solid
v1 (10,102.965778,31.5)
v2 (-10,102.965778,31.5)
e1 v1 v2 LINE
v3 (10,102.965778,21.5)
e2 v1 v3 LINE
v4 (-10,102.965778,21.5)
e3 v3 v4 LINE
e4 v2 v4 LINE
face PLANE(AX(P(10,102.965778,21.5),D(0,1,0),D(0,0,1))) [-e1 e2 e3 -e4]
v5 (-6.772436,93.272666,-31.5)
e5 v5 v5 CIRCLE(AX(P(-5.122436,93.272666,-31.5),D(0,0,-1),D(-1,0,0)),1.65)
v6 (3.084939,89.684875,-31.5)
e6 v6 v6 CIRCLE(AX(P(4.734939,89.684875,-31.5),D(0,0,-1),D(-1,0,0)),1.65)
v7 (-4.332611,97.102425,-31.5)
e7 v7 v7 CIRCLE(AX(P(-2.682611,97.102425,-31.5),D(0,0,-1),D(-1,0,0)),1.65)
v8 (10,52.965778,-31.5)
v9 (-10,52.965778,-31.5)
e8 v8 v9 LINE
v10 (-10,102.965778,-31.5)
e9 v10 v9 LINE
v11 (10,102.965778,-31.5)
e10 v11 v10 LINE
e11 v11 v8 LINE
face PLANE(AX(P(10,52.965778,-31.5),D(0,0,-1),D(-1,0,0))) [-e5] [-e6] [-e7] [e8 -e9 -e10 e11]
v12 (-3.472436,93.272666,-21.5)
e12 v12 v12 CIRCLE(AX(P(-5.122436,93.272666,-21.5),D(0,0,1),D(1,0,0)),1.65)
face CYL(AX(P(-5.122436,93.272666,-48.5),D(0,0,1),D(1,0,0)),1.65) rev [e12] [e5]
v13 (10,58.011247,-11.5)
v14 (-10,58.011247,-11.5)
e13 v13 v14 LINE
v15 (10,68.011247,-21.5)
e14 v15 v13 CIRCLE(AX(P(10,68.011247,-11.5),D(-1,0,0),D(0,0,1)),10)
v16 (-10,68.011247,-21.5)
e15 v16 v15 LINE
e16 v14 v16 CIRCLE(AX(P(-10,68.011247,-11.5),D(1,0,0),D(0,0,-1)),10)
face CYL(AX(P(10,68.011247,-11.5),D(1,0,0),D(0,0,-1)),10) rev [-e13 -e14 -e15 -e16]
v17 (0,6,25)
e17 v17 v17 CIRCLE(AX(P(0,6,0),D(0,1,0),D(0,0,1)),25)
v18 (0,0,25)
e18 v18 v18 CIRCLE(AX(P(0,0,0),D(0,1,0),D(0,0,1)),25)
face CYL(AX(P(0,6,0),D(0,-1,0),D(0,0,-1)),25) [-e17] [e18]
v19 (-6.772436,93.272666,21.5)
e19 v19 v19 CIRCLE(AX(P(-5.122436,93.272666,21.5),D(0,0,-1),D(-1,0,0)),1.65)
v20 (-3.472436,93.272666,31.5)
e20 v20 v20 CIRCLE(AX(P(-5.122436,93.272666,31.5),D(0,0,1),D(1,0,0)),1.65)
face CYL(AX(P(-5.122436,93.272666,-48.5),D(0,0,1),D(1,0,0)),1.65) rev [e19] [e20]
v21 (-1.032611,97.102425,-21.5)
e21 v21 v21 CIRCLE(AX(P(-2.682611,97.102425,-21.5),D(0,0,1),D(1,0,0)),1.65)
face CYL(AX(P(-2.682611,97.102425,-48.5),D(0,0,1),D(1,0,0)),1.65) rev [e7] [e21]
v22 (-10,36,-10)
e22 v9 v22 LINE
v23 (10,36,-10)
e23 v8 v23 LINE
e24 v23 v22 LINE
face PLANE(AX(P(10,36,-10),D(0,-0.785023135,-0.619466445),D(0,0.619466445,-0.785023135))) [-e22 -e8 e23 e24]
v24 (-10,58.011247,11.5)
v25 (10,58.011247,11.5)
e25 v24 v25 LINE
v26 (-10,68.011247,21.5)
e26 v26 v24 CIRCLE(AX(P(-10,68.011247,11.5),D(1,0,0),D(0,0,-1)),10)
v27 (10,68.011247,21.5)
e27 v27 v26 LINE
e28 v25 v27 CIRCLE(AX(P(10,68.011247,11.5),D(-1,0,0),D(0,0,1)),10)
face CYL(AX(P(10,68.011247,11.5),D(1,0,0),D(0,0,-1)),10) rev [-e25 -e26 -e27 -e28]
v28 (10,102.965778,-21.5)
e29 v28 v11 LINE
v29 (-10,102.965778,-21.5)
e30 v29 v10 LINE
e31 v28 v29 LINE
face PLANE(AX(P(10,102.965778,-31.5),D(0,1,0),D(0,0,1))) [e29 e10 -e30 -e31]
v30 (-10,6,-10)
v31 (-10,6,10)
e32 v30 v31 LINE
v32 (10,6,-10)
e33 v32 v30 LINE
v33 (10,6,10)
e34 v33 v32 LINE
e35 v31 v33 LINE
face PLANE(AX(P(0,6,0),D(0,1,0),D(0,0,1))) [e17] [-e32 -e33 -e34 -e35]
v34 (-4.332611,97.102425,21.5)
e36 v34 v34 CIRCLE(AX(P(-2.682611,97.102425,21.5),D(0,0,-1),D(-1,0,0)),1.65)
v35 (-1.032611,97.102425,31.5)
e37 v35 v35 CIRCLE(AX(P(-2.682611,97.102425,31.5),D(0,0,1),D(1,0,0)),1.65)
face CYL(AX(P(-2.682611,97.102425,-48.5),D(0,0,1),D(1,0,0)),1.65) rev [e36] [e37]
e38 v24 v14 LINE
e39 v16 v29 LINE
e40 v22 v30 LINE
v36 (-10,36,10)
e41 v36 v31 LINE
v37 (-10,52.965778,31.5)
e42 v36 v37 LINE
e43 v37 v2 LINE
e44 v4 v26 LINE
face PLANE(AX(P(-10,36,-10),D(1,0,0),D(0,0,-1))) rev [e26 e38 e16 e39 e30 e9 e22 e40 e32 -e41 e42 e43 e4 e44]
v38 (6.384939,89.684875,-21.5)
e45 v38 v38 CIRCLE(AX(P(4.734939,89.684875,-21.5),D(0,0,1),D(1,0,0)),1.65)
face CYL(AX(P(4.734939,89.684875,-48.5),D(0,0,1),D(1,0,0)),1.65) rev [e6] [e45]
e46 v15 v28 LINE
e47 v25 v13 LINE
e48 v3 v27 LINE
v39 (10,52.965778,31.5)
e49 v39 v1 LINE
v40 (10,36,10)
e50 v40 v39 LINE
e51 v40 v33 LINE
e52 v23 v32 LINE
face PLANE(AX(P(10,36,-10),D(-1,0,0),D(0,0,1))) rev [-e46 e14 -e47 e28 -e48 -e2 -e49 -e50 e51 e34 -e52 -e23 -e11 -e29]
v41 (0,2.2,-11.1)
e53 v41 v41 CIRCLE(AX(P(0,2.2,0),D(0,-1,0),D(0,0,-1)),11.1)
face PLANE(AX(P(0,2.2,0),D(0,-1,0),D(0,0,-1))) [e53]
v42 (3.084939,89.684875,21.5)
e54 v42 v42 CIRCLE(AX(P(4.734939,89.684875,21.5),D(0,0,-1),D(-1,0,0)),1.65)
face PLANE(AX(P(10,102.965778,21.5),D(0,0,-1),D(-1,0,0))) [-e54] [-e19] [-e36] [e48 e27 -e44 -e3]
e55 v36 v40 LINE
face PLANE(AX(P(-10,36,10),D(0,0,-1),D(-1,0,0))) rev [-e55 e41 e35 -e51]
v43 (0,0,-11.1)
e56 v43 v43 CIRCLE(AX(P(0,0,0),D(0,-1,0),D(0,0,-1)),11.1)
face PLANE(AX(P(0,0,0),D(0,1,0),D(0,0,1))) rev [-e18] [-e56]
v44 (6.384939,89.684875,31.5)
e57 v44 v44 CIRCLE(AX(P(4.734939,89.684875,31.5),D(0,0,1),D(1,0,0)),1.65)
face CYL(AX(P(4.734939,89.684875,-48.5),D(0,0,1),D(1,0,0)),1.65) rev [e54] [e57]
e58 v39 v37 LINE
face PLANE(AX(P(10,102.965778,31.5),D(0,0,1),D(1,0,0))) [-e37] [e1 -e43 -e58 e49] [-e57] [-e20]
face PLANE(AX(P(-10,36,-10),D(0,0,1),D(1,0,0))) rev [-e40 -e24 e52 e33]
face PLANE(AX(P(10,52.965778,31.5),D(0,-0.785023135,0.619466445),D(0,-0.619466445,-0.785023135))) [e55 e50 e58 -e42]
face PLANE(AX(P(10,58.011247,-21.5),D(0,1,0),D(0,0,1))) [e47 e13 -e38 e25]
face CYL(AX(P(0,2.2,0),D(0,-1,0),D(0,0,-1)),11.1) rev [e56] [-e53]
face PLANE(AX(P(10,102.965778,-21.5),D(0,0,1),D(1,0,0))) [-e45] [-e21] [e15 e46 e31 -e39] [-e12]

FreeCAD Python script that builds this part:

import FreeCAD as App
import Part
import Sketcher
from FreeCAD import Vector
Q = App.Units.Quantity


def edges_at(feature, points):
    """Names of the edges that pass closest to the given points."""
    edges = feature.Shape.Edges
    near = lambda p: min(range(len(edges)), key=lambda i: edges[i].distToShape(Part.Vertex(*p))[0])
    return sorted({f"Edge{near(p) + 1}" for p in points})


def add_polygon(sketch, points):
    """Adds a closed chain of lines whose ends are joined by coincident constraints."""
    first, n = sketch.GeometryCount, len(points)
    for a, b in zip(points, points[1:] + points[:1]):
        sketch.addGeometry(Part.LineSegment(App.Vector(*a, 0), App.Vector(*b, 0)), False)
    for i in range(n):
        sketch.addConstraint(Sketcher.Constraint("Coincident", first + i, 2, first + (i + 1) % n, 1))

doc = App.newDocument("Part")
body = doc.addObject("PartDesign::Body", "Body")

sketch1 = doc.addObject("Sketcher::SketchObject", "Sketch")
body.addObject(sketch1)
sketch1.AttachmentSupport = (doc.XZ_Plane, [""])
sketch1.MapMode = "FlatFace"
sketch1.addGeometry(Part.Circle(Vector(0, 0, 0), Vector(0, 0, 1), 25), False)
sketch1.addConstraint([
    Sketcher.Constraint("Coincident", 0, 3, -1, 1),
    Sketcher.Constraint("Diameter", 0, Q("50 mm")),
])
pad1 = doc.addObject("PartDesign::Pad", "Pad")
body.addObject(pad1)
pad1.Profile = sketch1
pad1.Length = 6
pad1.Reversed = True

sketch2 = doc.addObject("Sketcher::SketchObject", "Sketch001")
body.addObject(sketch2)
sketch2.AttachmentSupport = (doc.XZ_Plane, [""])
sketch2.MapMode = "FlatFace"
sketch2.AttachmentOffset = App.Placement(Vector(0, 0, -6), App.Rotation())
add_polygon(sketch2, [(-10, -10), (-10, 10), (10, 10), (10, -10)])
sketch2.addConstraint([
    Sketcher.Constraint("Vertical", 0),
    Sketcher.Constraint("Horizontal", 1),
    Sketcher.Constraint("Vertical", 2),
    Sketcher.Constraint("Horizontal", 3),
    Sketcher.Constraint("Symmetric", 0, 2, 2, 2, -1, 1),
    Sketcher.Constraint("Equal", 3, 0),
    Sketcher.Constraint("DistanceX", 1, 1, 1, 2, Q("20 mm")),
])
pad2 = doc.addObject("PartDesign::Pad", "Pad001")
body.addObject(pad2)
pad2.Profile = sketch2
pad2.Length = 30
pad2.Reversed = True

sketch3 = doc.addObject("Sketcher::SketchObject", "Sketch002")
body.addObject(sketch3)
sketch3.AttachmentSupport = (doc.YZ_Plane, [""])
sketch3.MapMode = "FlatFace"
sketch3.AttachmentOffset = App.Placement(Vector(0, 0, -10), App.Rotation())
add_polygon(sketch3, [(53, -32), (36, -10), (36, 10), (53, 32), (103, 32), (103, 22), (58, 22), (58, -22), (103, -22), (103, -32)])
sketch3.addConstraint([
    Sketcher.Constraint("Vertical", 1),
    Sketcher.Constraint("Horizontal", 3),
    Sketcher.Constraint("Vertical", 4),
    Sketcher.Constraint("Horizontal", 5),
    Sketcher.Constraint("Vertical", 6),
    Sketcher.Constraint("Horizontal", 7),
    Sketcher.Constraint("Vertical", 8),
    Sketcher.Constraint("Horizontal", 9),
    Sketcher.Constraint("Symmetric", 4, 2, 7, 2, -1),
    Sketcher.Constraint("Symmetric", 2, 2, 9, 2, -1),
    Sketcher.Constraint("Equal", 0, 2),
    Sketcher.Constraint("DistanceX", 3, 1, 3, 2, Q("50 mm")),
    Sketcher.Constraint("DistanceY", 1, 1, 1, 2, Q("20 mm")),
    Sketcher.Constraint("DistanceY", 4, 2, 4, 1, Q("10 mm")),
    Sketcher.Constraint("DistanceY", 6, 2, 6, 1, Q("43 mm")),
    Sketcher.Constraint("DistanceX", -1, 1, 0, 2, Q("36 mm")),
    Sketcher.Constraint("DistanceX", 5, 2, 5, 1, Q("44.954531 mm")),
    Sketcher.Constraint("DistanceX", -1, 1, 2, 2, Q("52.965778 mm")),
])
pad3 = doc.addObject("PartDesign::Pad", "Pad002")
body.addObject(pad3)
pad3.Profile = sketch3
pad3.Length = 20
doc.recompute()

fillet = doc.addObject("PartDesign::Fillet", "Fillet")
body.addObject(fillet)
fillet.Base = (pad3, edges_at(pad3, [(0, 58.011, -21.5)]))
fillet.Radius = 10
doc.recompute()

fillet2 = doc.addObject("PartDesign::Fillet", "Fillet001")
body.addObject(fillet2)
fillet2.Base = (fillet, edges_at(fillet, [(0, 58.011, 21.5)]))
fillet2.Radius = 10

sketch4 = doc.addObject("Sketcher::SketchObject", "Sketch003")
body.addObject(sketch4)
sketch4.AttachmentSupport = (doc.XZ_Plane, [""])
sketch4.MapMode = "FlatFace"
sketch4.addGeometry(Part.Circle(Vector(0, 0, 0), Vector(0, 0, 1), 11), False)
sketch4.addConstraint([
    Sketcher.Constraint("Coincident", 0, 3, -1, 1),
    Sketcher.Constraint("Diameter", 0, Q("22.2 mm")),
])
pocket1 = doc.addObject("PartDesign::Pocket", "Pocket")
body.addObject(pocket1)
pocket1.Profile = sketch4
pocket1.Length = 2.2

sketch5 = doc.addObject("Sketcher::SketchObject", "Sketch004")
body.addObject(sketch5)
sketch5.AttachmentSupport = (doc.XY_Plane, [""])
sketch5.MapMode = "FlatFace"
sketch5.AttachmentOffset = App.Placement(Vector(0, 0, 31.5), App.Rotation())
sketch5.addGeometry([
    Part.Circle(Vector(4.7, 89.7, 0), Vector(0, 0, 1), 1.6),
    Part.Circle(Vector(-2.7, 97.1, 0), Vector(0, 0, 1), 1.6),
    Part.Circle(Vector(-5.1, 93.3, 0), Vector(0, 0, 1), 1.6),
], False)
sketch5.addConstraint([
    Sketcher.Constraint("Equal", 0, 1),
    Sketcher.Constraint("Equal", 1, 2),
    Sketcher.Constraint("Diameter", 0, Q("3.3 mm")),
    Sketcher.Constraint("DistanceX", -1, 1, 0, 3, Q("4.734939 mm")),
    Sketcher.Constraint("DistanceX", 1, 3, -1, 1, Q("2.682611 mm")),
    Sketcher.Constraint("DistanceY", 0, 3, 1, 3, Q("7.41755 mm")),
    Sketcher.Constraint("DistanceY", 2, 3, 1, 3, Q("3.829759 mm")),
    Sketcher.Constraint("DistanceY", -1, 1, 0, 3, Q("89.684875 mm")),
    Sketcher.Constraint("DistanceX", 2, 3, -1, 1, Q("5.122436 mm")),
])
pocket2 = doc.addObject("PartDesign::Pocket", "Pocket001")
body.addObject(pocket2)
pocket2.Profile = sketch5
pocket2.Length = 80

doc.recompute()
